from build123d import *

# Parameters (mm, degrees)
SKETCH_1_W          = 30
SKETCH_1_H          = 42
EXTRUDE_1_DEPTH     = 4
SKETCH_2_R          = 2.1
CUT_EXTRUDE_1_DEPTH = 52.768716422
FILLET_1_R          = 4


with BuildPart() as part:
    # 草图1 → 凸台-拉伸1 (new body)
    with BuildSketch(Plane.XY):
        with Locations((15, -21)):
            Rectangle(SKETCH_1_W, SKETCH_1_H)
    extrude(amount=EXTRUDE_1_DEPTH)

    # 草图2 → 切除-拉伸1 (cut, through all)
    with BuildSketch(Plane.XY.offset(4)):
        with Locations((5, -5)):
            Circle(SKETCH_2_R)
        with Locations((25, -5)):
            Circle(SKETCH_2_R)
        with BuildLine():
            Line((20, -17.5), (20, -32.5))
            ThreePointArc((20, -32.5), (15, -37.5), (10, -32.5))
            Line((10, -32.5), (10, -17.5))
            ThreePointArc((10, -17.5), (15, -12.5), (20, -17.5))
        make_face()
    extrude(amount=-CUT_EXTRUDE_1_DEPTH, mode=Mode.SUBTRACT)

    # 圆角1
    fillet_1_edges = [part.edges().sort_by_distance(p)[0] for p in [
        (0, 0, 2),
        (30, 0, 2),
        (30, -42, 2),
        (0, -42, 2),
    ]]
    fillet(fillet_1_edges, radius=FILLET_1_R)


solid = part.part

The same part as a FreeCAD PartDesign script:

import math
import FreeCAD as App
import Part
import Sketcher
Q = App.Units.Quantity


def edges_at(feature, points):
    """Names of the edges that pass closest to the given points."""
    edges = feature.Shape.Edges
    near = lambda p: min(range(len(edges)), key=lambda i: edges[i].distToShape(Part.Vertex(*p))[0])
    return sorted({f"Edge{near(p) + 1}" for p in points})

doc = App.newDocument("Part")
params = doc.addObject("Spreadsheet::Sheet", "Params")
for row, (alias, value) in enumerate([
    ("sketch1_width", "30 mm"),
    ("sketch1_height", "42 mm"),
    ("pad1_length", "4 mm"),
    ("sketch2_radius", "5 mm"),
    ("sketch2_diameter", "4.2 mm"),
    ("sketch2_height", "15 mm"),
    ("fillet_radius", "4 mm"),
], start=1):
    params.set(f"A{row}", alias)
    params.set(f"B{row}", "=" + value)
    params.setAlias(f"B{row}", alias)

body = doc.addObject("PartDesign::Body", "Body")

# Sketch on XY plane
sketch1 = body.newObject("Sketcher::SketchObject", "Sketch")
sketch1.AttachmentSupport = (doc.getObject("XY_Plane"), [""])
sketch1.MapMode = "FlatFace"
sketch1.addGeometry(Part.LineSegment(App.Vector(0, 0, 0), App.Vector(0, -42, 0)), False)
sketch1.addGeometry(Part.LineSegment(App.Vector(0, -42, 0), App.Vector(30, -42, 0)), False)
sketch1.addGeometry(Part.LineSegment(App.Vector(30, -42, 0), App.Vector(30, 0, 0)), False)
sketch1.addGeometry(Part.LineSegment(App.Vector(30, 0, 0), App.Vector(0, 0, 0)), False)
sketch1.addConstraint(Sketcher.Constraint("Coincident", 0, 2, 1, 1))
sketch1.addConstraint(Sketcher.Constraint("Coincident", 1, 2, 2, 1))
sketch1.addConstraint(Sketcher.Constraint("Coincident", 2, 2, 3, 1))
sketch1.addConstraint(Sketcher.Constraint("Coincident", 3, 2, 0, 1))
sketch1.addConstraint(Sketcher.Constraint("Vertical", 0))
sketch1.addConstraint(Sketcher.Constraint("Horizontal", 1))
sketch1.addConstraint(Sketcher.Constraint("Vertical", 2))
sketch1.addConstraint(Sketcher.Constraint("Horizontal", 3))
sketch1.addConstraint(Sketcher.Constraint("Coincident", 3, 2, -1, 1))
sketch1.addConstraint(Sketcher.Constraint("DistanceX", 1, 1, 1, 2, Q("30 mm")))
sketch1.addConstraint(Sketcher.Constraint("DistanceY", 0, 2, 0, 1, Q("42 mm")))
sketch1.setExpression("Constraints[9]", "Params.sketch1_width")
sketch1.setExpression("Constraints[10]", "Params.sketch1_height")
pad1 = body.newObject("PartDesign::Pad", "Pad")
pad1.Profile = sketch1
pad1.setExpression("Length", "Params.pad1_length")

# Sketch on XY plane
sketch2 = body.newObject("Sketcher::SketchObject", "Sketch001")
sketch2.AttachmentSupport = (doc.getObject("XY_Plane"), [""])
sketch2.MapMode = "FlatFace"
sketch2.AttachmentOffset = App.Placement(App.Vector(0, 0, 4), App.Rotation())
sketch2.addGeometry(Part.Circle(App.Vector(5, -5, 0), App.Vector(0, 0, 1), 2.1), False)
sketch2.addGeometry(Part.Circle(App.Vector(25, -5, 0), App.Vector(0, 0, 1), 2.1), False)
sketch2.addGeometry(Part.LineSegment(App.Vector(20, -32.5, 0), App.Vector(20, -17.5, 0)), False)
sketch2.addGeometry(Part.ArcOfCircle(Part.Circle(App.Vector(15, -17.5, 0), App.Vector(0, 0, 1), 5), math.radians(0), math.radians(180)), False)
sketch2.addGeometry(Part.LineSegment(App.Vector(10, -17.5, 0), App.Vector(10, -32.5, 0)), False)
sketch2.addGeometry(Part.ArcOfCircle(Part.Circle(App.Vector(15, -32.5, 0), App.Vector(0, 0, 1), 5), math.radians(180), math.radians(360)), False)
sketch2.addConstraint(Sketcher.Constraint("Tangent", 2, 2, 3, 1))
sketch2.addConstraint(Sketcher.Constraint("Tangent", 3, 2, 4, 1))
sketch2.addConstraint(Sketcher.Constraint("Tangent", 4, 2, 5, 1))
sketch2.addConstraint(Sketcher.Constraint("Tangent", 5, 2, 2, 1))
sketch2.addConstraint(Sketcher.Constraint("Vertical", 2))
sketch2.addConstraint(Sketcher.Constraint("Vertical", 4))
sketch2.addConstraint(Sketcher.Constraint("Equal", 0, 1))
sketch2.addConstraint(Sketcher.Constraint("Horizontal", 0, 3, 1, 3))
sketch2.addConstraint(Sketcher.Constraint("Radius", 3, Q("5 mm")))
sketch2.addConstraint(Sketcher.Constraint("Diameter", 0, Q("4.2 mm")))
sketch2.addConstraint(Sketcher.Constraint("DistanceY", 2, 1, 2, 2, Q("15 mm")))
sketch2.addConstraint(Sketcher.Constraint("DistanceX", -1, 1, 0, 3, Q("5 mm")))
sketch2.addConstraint(Sketcher.Constraint("DistanceY", 0, 3, -1, 1, Q("5 mm")))
sketch2.addConstraint(Sketcher.Constraint("DistanceX", -1, 1, 1, 3, Q("25 mm")))
sketch2.addConstraint(Sketcher.Constraint("DistanceX", -1, 1, 3, 3, Q("15 mm")))
sketch2.addConstraint(Sketcher.Constraint("DistanceY", 3, 3, -1, 1, Q("17.5 mm")))
sketch2.setExpression("Constraints[8]", "Params.sketch2_radius")
sketch2.setExpression("Constraints[9]", "Params.sketch2_diameter")
sketch2.setExpression("Constraints[10]", "Params.sketch2_height")
pocket1 = body.newObject("PartDesign::Pocket", "Pocket")
pocket1.Profile = sketch2
pocket1.Type = "ThroughAll"
doc.recompute()

fillet = body.newObject("PartDesign::Fillet", "Fillet")
fillet.Base = (pocket1, edges_at(pocket1, [
    (0, 0, 2),
    (30, 0, 2),
    (30, -42, 2),
    (0, -42, 2),
]))
fillet.setExpression("Radius", "Params.fillet_radius")

doc.recompute()
